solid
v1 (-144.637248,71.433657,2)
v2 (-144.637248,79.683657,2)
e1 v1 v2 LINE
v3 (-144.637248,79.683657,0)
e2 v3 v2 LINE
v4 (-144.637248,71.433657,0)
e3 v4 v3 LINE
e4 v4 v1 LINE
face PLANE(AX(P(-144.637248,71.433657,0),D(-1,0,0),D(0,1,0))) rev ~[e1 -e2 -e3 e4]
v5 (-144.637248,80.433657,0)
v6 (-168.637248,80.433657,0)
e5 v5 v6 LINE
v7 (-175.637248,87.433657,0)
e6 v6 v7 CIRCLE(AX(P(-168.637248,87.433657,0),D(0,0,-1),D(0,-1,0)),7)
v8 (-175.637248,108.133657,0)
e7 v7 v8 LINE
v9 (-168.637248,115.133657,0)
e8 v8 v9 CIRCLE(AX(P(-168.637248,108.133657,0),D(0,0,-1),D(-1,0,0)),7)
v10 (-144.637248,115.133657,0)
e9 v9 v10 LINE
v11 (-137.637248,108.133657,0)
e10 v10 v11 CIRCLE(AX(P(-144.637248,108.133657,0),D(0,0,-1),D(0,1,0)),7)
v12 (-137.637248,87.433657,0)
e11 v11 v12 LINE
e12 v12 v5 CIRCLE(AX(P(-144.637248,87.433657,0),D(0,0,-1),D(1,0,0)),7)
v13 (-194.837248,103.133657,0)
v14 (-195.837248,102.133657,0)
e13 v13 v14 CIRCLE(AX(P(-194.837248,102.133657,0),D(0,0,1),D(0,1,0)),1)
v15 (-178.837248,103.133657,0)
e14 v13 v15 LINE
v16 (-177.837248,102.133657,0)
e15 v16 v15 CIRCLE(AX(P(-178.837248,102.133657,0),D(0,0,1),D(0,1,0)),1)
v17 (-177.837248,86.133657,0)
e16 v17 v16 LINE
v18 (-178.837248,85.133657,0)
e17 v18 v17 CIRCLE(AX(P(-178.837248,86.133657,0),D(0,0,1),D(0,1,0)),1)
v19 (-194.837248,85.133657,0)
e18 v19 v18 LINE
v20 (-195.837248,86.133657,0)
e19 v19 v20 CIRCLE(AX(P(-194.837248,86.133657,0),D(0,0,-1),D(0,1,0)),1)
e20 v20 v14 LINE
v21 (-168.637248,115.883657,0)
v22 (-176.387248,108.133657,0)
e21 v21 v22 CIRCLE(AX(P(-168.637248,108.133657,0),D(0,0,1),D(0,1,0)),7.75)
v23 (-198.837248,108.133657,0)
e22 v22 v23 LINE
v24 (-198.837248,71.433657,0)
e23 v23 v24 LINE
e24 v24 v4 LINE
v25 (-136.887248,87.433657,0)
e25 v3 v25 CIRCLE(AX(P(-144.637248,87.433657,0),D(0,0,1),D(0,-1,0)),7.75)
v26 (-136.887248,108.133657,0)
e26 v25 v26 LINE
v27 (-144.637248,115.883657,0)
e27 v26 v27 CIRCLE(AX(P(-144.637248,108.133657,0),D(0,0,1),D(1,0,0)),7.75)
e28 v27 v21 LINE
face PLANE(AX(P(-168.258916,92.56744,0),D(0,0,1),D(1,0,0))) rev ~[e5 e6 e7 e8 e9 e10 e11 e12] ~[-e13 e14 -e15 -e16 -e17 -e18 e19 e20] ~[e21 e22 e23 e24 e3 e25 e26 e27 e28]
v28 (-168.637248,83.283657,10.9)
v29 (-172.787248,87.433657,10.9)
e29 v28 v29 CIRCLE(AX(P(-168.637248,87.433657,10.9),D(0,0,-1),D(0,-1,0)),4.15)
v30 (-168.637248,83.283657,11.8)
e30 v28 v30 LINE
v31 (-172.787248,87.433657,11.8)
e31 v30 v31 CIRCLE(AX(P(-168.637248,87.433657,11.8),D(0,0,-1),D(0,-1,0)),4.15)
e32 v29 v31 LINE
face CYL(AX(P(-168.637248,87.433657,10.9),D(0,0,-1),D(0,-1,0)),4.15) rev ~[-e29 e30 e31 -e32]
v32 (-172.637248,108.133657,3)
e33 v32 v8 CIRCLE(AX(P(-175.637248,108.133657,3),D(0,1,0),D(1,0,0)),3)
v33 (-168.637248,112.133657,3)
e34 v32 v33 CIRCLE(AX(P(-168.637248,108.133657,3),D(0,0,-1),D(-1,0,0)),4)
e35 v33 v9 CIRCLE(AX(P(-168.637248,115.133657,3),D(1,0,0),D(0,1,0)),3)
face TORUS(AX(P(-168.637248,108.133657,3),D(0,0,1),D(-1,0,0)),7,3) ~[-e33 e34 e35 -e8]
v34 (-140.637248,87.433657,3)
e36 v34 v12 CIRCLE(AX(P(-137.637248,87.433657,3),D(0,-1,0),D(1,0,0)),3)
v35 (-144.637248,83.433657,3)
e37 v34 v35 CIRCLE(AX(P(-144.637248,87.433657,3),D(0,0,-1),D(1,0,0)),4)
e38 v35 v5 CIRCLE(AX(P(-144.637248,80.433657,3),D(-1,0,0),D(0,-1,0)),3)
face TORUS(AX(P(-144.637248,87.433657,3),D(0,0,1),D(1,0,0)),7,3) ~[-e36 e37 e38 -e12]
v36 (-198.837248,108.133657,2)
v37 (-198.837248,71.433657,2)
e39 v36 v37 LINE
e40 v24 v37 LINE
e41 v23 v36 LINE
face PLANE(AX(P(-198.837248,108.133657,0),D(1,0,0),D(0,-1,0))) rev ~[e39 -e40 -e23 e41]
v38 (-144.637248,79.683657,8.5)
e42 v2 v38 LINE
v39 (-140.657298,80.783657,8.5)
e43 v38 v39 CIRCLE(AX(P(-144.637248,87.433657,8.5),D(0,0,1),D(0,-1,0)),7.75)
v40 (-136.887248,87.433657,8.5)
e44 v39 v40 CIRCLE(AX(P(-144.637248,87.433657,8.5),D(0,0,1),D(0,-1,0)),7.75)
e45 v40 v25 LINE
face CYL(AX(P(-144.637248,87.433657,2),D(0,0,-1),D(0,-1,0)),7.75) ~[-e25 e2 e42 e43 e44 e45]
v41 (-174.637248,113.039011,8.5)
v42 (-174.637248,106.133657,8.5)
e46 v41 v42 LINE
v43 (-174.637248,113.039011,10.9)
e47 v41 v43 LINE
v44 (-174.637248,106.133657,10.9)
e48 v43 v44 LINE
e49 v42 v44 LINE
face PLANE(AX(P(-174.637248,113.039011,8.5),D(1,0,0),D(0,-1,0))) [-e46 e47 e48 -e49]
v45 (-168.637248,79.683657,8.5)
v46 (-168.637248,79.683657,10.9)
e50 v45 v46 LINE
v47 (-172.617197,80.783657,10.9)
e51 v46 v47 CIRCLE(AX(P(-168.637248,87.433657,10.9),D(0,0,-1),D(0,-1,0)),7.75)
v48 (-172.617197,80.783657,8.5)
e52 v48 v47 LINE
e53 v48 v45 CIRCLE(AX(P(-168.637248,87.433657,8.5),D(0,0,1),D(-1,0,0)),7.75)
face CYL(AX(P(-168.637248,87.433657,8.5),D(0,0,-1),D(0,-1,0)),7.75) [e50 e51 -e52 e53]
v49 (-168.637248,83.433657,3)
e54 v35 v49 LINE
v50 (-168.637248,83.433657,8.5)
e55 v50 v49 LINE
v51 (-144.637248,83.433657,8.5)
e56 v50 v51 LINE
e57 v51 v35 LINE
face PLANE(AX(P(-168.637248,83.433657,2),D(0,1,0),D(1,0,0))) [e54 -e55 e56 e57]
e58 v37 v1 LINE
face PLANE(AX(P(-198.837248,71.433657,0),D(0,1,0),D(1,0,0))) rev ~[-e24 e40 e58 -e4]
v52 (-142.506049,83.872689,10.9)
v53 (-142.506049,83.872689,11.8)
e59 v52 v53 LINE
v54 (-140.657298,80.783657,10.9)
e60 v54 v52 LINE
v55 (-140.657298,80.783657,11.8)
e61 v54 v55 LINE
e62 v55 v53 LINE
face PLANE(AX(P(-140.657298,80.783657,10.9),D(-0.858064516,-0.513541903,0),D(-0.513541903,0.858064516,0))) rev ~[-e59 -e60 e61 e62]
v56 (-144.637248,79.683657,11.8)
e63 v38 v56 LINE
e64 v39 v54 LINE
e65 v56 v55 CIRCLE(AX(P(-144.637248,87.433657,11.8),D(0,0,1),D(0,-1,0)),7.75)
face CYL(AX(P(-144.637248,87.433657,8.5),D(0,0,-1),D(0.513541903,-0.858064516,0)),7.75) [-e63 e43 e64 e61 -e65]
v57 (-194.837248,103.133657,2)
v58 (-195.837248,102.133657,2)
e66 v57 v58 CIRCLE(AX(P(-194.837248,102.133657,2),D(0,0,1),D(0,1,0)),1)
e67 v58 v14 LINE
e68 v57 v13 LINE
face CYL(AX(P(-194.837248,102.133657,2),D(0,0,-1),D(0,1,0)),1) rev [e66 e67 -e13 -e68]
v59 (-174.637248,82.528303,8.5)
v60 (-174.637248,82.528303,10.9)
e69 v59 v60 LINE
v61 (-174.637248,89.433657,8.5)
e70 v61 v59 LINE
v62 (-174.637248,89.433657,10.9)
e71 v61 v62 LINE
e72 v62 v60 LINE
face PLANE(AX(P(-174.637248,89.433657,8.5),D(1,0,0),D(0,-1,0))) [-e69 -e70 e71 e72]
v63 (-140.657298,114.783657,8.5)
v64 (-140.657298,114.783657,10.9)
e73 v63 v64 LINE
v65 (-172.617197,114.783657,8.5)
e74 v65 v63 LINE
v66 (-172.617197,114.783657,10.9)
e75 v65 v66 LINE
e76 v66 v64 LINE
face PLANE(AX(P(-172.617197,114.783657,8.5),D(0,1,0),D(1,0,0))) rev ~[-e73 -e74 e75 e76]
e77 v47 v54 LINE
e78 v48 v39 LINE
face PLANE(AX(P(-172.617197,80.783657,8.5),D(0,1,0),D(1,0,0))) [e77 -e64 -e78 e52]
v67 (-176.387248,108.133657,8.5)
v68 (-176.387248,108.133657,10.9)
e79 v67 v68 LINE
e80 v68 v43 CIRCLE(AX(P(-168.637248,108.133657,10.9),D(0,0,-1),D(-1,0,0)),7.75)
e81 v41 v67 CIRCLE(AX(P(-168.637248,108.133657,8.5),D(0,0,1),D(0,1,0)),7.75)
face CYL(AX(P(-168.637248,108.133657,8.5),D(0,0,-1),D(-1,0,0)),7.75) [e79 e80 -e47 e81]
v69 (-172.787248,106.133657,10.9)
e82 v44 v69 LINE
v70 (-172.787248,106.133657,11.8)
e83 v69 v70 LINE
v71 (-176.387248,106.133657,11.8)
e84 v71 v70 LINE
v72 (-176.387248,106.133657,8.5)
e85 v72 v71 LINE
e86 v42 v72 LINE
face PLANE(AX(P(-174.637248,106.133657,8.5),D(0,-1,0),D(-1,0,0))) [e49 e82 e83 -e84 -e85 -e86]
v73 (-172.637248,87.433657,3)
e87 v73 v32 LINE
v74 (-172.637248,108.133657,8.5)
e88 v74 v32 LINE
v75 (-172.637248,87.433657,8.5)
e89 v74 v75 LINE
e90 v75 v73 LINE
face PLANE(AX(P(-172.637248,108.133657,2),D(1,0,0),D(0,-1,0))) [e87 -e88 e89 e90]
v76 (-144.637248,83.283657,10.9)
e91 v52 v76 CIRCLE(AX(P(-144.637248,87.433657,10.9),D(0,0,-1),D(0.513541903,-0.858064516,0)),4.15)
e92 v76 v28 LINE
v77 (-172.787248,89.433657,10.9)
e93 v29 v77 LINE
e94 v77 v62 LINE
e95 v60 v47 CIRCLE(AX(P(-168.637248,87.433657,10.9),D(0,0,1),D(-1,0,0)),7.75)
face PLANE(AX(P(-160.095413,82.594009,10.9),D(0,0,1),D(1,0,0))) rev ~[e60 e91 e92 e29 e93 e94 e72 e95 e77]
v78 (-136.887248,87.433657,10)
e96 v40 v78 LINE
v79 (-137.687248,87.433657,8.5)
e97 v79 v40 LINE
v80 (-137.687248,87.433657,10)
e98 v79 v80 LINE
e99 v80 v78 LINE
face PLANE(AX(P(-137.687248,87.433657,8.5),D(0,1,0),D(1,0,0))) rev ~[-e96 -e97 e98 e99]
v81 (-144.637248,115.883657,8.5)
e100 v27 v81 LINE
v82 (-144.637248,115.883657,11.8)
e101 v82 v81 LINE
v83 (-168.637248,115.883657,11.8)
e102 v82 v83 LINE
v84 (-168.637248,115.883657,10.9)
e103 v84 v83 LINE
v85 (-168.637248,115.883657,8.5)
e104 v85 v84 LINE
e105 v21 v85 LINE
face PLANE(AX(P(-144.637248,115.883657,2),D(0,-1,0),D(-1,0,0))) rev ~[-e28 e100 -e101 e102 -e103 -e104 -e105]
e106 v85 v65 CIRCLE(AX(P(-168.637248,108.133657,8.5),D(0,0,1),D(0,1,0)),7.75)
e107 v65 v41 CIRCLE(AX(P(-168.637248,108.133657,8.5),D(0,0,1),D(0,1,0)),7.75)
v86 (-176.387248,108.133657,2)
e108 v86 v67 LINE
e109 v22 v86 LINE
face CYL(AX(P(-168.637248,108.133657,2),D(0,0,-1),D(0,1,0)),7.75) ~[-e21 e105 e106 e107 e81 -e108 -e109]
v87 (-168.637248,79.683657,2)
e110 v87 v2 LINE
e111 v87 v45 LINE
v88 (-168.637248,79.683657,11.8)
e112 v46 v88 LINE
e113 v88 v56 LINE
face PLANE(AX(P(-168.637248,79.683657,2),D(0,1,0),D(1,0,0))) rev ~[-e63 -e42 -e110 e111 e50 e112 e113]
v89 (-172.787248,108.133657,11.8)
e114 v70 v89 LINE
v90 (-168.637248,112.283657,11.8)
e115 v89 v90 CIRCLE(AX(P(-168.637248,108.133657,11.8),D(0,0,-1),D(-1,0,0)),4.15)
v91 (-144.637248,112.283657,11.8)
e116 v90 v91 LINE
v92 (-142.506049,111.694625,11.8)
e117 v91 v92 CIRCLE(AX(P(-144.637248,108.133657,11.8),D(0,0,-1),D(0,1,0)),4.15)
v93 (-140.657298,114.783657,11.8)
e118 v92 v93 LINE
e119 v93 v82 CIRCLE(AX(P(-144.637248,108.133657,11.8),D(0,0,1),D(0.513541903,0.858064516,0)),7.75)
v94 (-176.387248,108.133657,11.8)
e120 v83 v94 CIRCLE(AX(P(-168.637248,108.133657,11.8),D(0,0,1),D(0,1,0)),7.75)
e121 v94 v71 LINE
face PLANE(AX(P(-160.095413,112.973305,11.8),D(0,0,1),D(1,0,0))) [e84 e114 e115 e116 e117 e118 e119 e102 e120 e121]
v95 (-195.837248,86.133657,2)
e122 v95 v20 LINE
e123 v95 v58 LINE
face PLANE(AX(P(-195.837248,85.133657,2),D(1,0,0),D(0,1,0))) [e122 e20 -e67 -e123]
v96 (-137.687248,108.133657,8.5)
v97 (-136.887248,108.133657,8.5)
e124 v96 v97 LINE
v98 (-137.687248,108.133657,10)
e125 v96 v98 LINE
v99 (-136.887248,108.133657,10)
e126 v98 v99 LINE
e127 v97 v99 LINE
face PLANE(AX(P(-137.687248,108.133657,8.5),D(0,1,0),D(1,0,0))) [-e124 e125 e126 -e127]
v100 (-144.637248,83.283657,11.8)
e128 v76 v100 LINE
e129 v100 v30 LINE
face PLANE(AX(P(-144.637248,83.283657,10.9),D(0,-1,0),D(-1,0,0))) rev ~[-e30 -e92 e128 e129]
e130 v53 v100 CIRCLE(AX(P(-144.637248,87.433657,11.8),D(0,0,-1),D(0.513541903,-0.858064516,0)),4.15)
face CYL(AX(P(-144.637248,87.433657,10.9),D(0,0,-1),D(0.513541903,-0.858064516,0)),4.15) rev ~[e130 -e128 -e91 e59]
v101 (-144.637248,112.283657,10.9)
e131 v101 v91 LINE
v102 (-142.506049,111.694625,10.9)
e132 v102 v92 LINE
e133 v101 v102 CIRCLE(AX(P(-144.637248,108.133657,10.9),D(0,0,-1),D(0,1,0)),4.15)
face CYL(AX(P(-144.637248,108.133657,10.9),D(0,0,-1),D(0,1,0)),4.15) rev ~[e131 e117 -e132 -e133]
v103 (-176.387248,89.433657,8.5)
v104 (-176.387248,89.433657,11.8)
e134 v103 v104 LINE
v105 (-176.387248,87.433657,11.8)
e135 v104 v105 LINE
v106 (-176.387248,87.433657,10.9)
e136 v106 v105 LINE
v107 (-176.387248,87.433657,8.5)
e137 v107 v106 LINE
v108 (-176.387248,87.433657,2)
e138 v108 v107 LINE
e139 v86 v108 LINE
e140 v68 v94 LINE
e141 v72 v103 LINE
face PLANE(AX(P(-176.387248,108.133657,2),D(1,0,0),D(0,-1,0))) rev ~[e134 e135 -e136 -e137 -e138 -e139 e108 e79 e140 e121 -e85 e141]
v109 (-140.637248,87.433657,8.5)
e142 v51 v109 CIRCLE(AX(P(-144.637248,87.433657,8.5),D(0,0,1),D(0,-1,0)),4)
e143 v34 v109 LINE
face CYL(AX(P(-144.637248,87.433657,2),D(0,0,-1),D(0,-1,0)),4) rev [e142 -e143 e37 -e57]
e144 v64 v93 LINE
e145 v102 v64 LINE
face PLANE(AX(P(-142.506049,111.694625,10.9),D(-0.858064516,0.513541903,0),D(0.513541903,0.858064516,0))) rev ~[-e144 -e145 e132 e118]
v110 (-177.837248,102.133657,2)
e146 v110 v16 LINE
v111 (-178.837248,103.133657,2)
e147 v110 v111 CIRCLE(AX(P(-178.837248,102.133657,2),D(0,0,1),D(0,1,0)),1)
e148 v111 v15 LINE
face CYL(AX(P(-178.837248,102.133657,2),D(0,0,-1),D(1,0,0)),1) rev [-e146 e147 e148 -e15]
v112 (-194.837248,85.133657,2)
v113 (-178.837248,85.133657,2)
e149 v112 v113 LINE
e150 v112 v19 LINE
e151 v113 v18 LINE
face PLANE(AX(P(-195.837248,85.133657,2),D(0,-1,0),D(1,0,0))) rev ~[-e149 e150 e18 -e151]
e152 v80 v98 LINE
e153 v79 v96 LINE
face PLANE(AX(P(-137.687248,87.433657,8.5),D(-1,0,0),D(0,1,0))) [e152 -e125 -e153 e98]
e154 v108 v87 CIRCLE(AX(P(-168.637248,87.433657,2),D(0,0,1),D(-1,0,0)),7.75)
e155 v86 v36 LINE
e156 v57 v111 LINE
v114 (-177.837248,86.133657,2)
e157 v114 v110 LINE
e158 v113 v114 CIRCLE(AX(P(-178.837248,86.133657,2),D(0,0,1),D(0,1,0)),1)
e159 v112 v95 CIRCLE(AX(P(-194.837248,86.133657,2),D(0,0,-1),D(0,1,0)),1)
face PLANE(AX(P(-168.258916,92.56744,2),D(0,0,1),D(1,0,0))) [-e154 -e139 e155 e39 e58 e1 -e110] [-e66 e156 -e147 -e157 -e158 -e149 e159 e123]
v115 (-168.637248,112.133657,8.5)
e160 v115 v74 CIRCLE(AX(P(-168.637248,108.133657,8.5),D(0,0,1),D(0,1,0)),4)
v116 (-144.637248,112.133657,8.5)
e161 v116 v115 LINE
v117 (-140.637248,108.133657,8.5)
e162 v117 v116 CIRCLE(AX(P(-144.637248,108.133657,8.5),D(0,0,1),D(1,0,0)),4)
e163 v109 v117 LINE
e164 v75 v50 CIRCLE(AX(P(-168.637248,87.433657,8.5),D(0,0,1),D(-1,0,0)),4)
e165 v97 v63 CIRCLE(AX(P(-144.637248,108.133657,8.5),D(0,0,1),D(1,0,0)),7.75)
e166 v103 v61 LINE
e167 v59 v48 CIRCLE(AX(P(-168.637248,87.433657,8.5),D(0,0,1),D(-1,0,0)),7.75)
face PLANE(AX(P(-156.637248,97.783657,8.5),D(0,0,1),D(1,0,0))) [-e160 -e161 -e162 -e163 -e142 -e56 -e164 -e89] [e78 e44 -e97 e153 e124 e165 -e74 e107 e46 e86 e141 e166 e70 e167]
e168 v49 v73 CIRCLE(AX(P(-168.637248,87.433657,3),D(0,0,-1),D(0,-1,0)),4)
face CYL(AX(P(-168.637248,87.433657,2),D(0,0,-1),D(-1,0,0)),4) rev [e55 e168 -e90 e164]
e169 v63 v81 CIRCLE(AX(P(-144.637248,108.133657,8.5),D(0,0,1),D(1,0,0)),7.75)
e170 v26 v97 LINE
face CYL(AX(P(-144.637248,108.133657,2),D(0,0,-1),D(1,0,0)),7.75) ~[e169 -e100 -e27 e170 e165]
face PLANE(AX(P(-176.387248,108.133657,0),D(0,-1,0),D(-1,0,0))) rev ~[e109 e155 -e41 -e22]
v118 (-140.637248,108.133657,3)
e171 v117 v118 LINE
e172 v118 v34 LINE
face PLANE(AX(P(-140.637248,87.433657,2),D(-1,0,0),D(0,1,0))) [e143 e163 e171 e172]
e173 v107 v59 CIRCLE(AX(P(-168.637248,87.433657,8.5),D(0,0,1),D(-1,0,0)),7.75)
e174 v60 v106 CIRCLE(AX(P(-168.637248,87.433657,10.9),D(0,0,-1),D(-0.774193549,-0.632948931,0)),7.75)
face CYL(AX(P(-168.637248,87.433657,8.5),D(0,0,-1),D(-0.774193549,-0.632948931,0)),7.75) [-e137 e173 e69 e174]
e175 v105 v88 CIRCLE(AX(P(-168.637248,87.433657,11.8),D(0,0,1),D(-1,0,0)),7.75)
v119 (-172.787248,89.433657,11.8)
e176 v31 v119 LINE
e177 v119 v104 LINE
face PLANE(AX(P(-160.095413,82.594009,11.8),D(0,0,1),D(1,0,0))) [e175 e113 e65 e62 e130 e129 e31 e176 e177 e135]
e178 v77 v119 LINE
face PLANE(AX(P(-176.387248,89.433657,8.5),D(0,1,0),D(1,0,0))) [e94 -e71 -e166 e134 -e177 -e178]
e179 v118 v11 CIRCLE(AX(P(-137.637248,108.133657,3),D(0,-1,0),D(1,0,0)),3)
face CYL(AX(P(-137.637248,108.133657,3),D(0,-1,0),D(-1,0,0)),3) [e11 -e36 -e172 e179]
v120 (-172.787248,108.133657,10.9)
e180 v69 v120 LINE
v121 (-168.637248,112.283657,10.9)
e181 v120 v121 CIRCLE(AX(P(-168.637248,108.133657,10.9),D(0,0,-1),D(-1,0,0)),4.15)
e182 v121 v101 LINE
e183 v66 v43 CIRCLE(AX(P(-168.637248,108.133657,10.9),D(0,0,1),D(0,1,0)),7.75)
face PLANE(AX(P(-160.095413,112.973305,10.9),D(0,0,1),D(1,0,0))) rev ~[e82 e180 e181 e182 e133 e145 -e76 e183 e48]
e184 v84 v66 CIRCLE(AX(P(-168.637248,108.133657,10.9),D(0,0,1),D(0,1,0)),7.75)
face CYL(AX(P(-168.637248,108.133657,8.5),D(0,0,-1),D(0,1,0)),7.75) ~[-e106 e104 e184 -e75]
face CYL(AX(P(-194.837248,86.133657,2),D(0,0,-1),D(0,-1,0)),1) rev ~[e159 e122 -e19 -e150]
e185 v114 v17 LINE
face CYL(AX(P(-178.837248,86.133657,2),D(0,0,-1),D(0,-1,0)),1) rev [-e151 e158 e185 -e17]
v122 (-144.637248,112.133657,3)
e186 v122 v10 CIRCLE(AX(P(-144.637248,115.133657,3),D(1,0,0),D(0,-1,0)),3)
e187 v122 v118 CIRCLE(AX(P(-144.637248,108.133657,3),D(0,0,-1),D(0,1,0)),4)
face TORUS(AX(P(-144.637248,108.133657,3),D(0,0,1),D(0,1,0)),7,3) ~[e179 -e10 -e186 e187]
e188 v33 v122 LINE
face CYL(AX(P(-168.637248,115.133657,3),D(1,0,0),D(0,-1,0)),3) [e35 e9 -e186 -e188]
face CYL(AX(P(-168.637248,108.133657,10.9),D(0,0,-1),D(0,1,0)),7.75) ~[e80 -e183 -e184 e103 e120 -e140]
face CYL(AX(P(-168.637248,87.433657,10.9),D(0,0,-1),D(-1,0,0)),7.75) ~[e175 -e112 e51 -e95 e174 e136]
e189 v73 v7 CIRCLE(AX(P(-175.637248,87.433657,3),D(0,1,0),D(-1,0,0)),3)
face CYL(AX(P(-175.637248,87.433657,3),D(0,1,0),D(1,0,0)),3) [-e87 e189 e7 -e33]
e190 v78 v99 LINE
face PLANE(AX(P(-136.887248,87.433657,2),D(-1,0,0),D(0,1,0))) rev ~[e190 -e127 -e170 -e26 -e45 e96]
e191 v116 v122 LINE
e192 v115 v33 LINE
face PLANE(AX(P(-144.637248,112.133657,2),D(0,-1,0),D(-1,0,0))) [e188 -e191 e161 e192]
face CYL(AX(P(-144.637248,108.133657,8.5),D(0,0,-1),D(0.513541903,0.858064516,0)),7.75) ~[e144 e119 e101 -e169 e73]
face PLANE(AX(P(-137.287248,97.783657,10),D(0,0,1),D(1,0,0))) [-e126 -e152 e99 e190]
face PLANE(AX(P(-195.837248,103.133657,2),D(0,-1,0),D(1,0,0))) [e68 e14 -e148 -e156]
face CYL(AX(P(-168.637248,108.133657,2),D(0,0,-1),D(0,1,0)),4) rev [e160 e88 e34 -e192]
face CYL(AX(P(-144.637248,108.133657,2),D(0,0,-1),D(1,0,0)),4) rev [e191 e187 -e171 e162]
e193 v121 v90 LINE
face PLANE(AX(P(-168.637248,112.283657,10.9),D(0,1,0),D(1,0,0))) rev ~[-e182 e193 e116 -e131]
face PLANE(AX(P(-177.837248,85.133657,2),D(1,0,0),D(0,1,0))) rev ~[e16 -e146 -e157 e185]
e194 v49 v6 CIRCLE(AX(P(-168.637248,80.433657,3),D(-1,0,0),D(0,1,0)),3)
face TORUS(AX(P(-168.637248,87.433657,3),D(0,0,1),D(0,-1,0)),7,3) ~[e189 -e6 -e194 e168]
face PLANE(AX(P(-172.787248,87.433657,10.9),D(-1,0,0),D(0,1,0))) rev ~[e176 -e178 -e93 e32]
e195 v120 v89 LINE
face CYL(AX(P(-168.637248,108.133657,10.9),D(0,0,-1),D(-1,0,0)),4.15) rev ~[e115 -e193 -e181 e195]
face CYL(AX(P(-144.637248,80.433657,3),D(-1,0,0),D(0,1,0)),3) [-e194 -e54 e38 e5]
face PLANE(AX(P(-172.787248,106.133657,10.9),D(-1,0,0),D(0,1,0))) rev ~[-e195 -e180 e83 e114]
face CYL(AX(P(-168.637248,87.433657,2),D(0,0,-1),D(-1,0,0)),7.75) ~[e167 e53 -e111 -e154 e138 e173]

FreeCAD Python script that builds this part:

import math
import FreeCAD as App
import Part
import Sketcher

V = App.Vector


def edges_at(feature, points):
    """Names of the edges that pass closest to the given points."""
    edges = feature.Shape.Edges
    near = lambda p: min(range(len(edges)), key=lambda i: edges[i].distToShape(Part.Vertex(*p))[0])
    return sorted({f"Edge{near(p) + 1}" for p in points})

doc = App.newDocument("Part")
params = doc.addObject("Spreadsheet::Sheet", "Params")
for row, (alias, value) in enumerate([
    ("sketch1_radius", "4 mm"),
    ("sketch1_width", "24 mm"),
    ("sketch1_radius2", "7.75 mm"),
    ("sketch1_width2", "54.2 mm"),
    ("sketch1_height", "20.7 mm"),
    ("pad1_length", "2 mm"),
    ("sketch2_radius", "4 mm"),
    ("sketch2_width", "24 mm"),
    ("sketch2_radius2", "7.75 mm"),
    ("sketch2_height", "20.7 mm"),
    ("pad2_length", "6.5 mm"),
    ("sketch3_width", "24 mm"),
    ("sketch3_height", "2 mm"),
    ("sketch3_radius", "7.75 mm"),
    ("pad3_length", "2.4 mm"),
    ("sketch4_width", "24 mm"),
    ("sketch4_height", "2 mm"),
    ("sketch4_radius", "4.15 mm"),
    ("sketch4_radius2", "7.75 mm"),
    ("pad4_length", "0.9 mm"),
    ("fillet_radius", "3 mm"),
    ("sketch5_width", "0.8 mm"),
    ("sketch5_height", "20.7 mm"),
    ("pad5_length", "1.5 mm"),
    ("sketch6_width", "18 mm"),
    ("pocket1_length", "2 mm"),
    ("fillet2_radius", "1 mm"),
], start=1):
    params.set(f"A{row}", alias)
    params.set(f"B{row}", "=" + value)
    params.setAlias(f"B{row}", alias)

body = doc.addObject("PartDesign::Body", "Body")

# Sketch on XY plane
sketch1 = body.newObject("Sketcher::SketchObject", "Sketch")
sketch1.AttachmentSupport = (doc.getObject("XY_Plane"), [""])
sketch1.MapMode = "FlatFace"
sketch1.addGeometry(Part.LineSegment(V(-198.8, 71.4, 0), V(-144.6, 71.4, 0)), False)
sketch1.addGeometry(Part.LineSegment(V(-144.6, 71.4, 0), V(-144.6, 79.7, 0)), False)
sketch1.addGeometry(Part.ArcOfCircle(Part.Circle(V(-144.6, 87.4, 0), V(0, 0, 1), 7.8), math.radians(-90), math.radians(0)), False)
sketch1.addGeometry(Part.LineSegment(V(-136.9, 87.4, 0), V(-136.9, 108.1, 0)), False)
sketch1.addGeometry(Part.ArcOfCircle(Part.Circle(V(-144.6, 108.1, 0), V(0, 0, 1), 7.8), math.radians(0), math.radians(90)), False)
sketch1.addGeometry(Part.LineSegment(V(-144.6, 115.9, 0), V(-168.6, 115.9, 0)), False)
sketch1.addGeometry(Part.ArcOfCircle(Part.Circle(V(-168.6, 108.1, 0), V(0, 0, 1), 7.8), math.radians(90), math.radians(180)), False)
sketch1.addGeometry(Part.LineSegment(V(-176.4, 108.1, 0), V(-198.8, 108.1, 0)), False)
sketch1.addGeometry(Part.LineSegment(V(-198.8, 108.1, 0), V(-198.8, 71.4, 0)), False)
sketch1.addGeometry(Part.ArcOfCircle(Part.Circle(V(-144.6, 87.4, 0), V(0, 0, 1), 4), math.radians(-90), math.radians(0)), False)
sketch1.addGeometry(Part.LineSegment(V(-144.6, 83.4, 0), V(-168.6, 83.4, 0)), False)
sketch1.addGeometry(Part.ArcOfCircle(Part.Circle(V(-168.6, 87.4, 0), V(0, 0, 1), 4), math.radians(180), math.radians(270)), False)
sketch1.addGeometry(Part.LineSegment(V(-172.6, 87.4, 0), V(-172.6, 108.1, 0)), False)
sketch1.addGeometry(Part.ArcOfCircle(Part.Circle(V(-168.6, 108.1, 0), V(0, 0, 1), 4), math.radians(90), math.radians(180)), False)
sketch1.addGeometry(Part.LineSegment(V(-168.6, 112.1, 0), V(-144.6, 112.1, 0)), False)
sketch1.addGeometry(Part.ArcOfCircle(Part.Circle(V(-144.6, 108.1, 0), V(0, 0, 1), 4), math.radians(0), math.radians(90)), False)
sketch1.addGeometry(Part.LineSegment(V(-140.6, 108.1, 0), V(-140.6, 87.4, 0)), False)
sketch1.addConstraint(Sketcher.Constraint("Coincident", 0, 2, 1, 1))
sketch1.addConstraint(Sketcher.Constraint("Coincident", 1, 2, 2, 1))
sketch1.addConstraint(Sketcher.Constraint("Tangent", 2, 2, 3, 1))
sketch1.addConstraint(Sketcher.Constraint("Tangent", 3, 2, 4, 1))
sketch1.addConstraint(Sketcher.Constraint("Tangent", 4, 2, 5, 1))
sketch1.addConstraint(Sketcher.Constraint("Tangent", 5, 2, 6, 1))
sketch1.addConstraint(Sketcher.Constraint("Coincident", 6, 2, 7, 1))
sketch1.addConstraint(Sketcher.Constraint("Coincident", 7, 2, 8, 1))
sketch1.addConstraint(Sketcher.Constraint("Coincident", 8, 2, 0, 1))
sketch1.addConstraint(Sketcher.Constraint("Tangent", 9, 1, 10, 1))
sketch1.addConstraint(Sketcher.Constraint("Tangent", 10, 2, 11, 2))
sketch1.addConstraint(Sketcher.Constraint("Tangent", 11, 1, 12, 1))
sketch1.addConstraint(Sketcher.Constraint("Tangent", 12, 2, 13, 2))
sketch1.addConstraint(Sketcher.Constraint("Tangent", 13, 1, 14, 1))
sketch1.addConstraint(Sketcher.Constraint("Tangent", 14, 2, 15, 2))
sketch1.addConstraint(Sketcher.Constraint("Tangent", 15, 1, 16, 1))
sketch1.addConstraint(Sketcher.Constraint("Tangent", 16, 2, 9, 2))
sketch1.addConstraint(Sketcher.Constraint("Horizontal", 0))
sketch1.addConstraint(Sketcher.Constraint("Vertical", 1))
sketch1.addConstraint(Sketcher.Constraint("Vertical", 3))
sketch1.addConstraint(Sketcher.Constraint("Horizontal", 5))
sketch1.addConstraint(Sketcher.Constraint("Horizontal", 7))
sketch1.addConstraint(Sketcher.Constraint("Vertical", 8))
sketch1.addConstraint(Sketcher.Constraint("Horizontal", 10))
sketch1.addConstraint(Sketcher.Constraint("Vertical", 12))
sketch1.addConstraint(Sketcher.Constraint("Horizontal", 14))
sketch1.addConstraint(Sketcher.Constraint("Vertical", 16))
sketch1.addConstraint(Sketcher.Constraint("Coincident", 9, 3, 2, 3))
sketch1.addConstraint(Sketcher.Constraint("Coincident", 13, 3, 6, 3))
sketch1.addConstraint(Sketcher.Constraint("Coincident", 15, 3, 4, 3))
sketch1.addConstraint(Sketcher.Constraint("Equal", 2, 4))
sketch1.addConstraint(Sketcher.Constraint("Equal", 4, 6))
sketch1.addConstraint(Sketcher.Constraint("Equal", 9, 11))
sketch1.addConstraint(Sketcher.Constraint("Horizontal", 3, 2, 6, 2))
sketch1.addConstraint(Sketcher.Constraint("Vertical", 15, 3, 0, 2))
sketch1.addConstraint(Sketcher.Constraint("Radius", 9, 4.0))
sketch1.addConstraint(Sketcher.Constraint("DistanceX", 5, 2, 5, 1, 24.0))
sketch1.addConstraint(Sketcher.Constraint("Radius", 2, 7.75))
sketch1.addConstraint(Sketcher.Constraint("DistanceX", 0, 1, 0, 2, 54.2))
sketch1.addConstraint(Sketcher.Constraint("DistanceY", 3, 1, 3, 2, 20.7))
sketch1.addConstraint(Sketcher.Constraint("DistanceY", 8, 2, 8, 1, 36.7))
sketch1.addConstraint(Sketcher.Constraint("DistanceX", 2, 3, -1, 1, 144.637248))
sketch1.addConstraint(Sketcher.Constraint("DistanceY", -1, 1, 2, 3, 87.433657))
sketch1.setExpression("Constraints[35]", "Params.sketch1_radius")
sketch1.setExpression("Constraints[36]", "Params.sketch1_width")
sketch1.setExpression("Constraints[37]", "Params.sketch1_radius2")
sketch1.setExpression("Constraints[38]", "Params.sketch1_width2")
sketch1.setExpression("Constraints[39]", "Params.sketch1_height")
pad1 = body.newObject("PartDesign::Pad", "Pad")
pad1.Profile = sketch1
pad1.setExpression("Length", "Params.pad1_length")

# Sketch on XY plane
sketch2 = body.newObject("Sketcher::SketchObject", "Sketch001")
sketch2.AttachmentSupport = (doc.getObject("XY_Plane"), [""])
sketch2.MapMode = "FlatFace"
sketch2.AttachmentOffset = App.Placement(V(0, 0, 2), App.Rotation())
sketch2.addGeometry(Part.LineSegment(V(-136.9, 87.4, 0), V(-136.9, 108.1, 0)), False)
sketch2.addGeometry(Part.ArcOfCircle(Part.Circle(V(-144.6, 108.1, 0), V(0, 0, 1), 7.8), math.radians(0), math.radians(90)), False)
sketch2.addGeometry(Part.LineSegment(V(-144.6, 115.9, 0), V(-168.6, 115.9, 0)), False)
sketch2.addGeometry(Part.ArcOfCircle(Part.Circle(V(-168.6, 108.1, 0), V(0, 0, 1), 7.8), math.radians(90), math.radians(180)), False)
sketch2.addGeometry(Part.LineSegment(V(-176.4, 108.1, 0), V(-176.4, 87.4, 0)), False)
sketch2.addGeometry(Part.ArcOfCircle(Part.Circle(V(-168.6, 87.4, 0), V(0, 0, 1), 7.8), math.radians(-180), math.radians(-90)), False)
sketch2.addGeometry(Part.LineSegment(V(-168.6, 79.7, 0), V(-144.6, 79.7, 0)), False)
sketch2.addGeometry(Part.ArcOfCircle(Part.Circle(V(-144.6, 87.4, 0), V(0, 0, 1), 7.8), math.radians(-90), math.radians(0)), False)
sketch2.addGeometry(Part.LineSegment(V(-140.6, 108.1, 0), V(-140.6, 87.4, 0)), False)
sketch2.addGeometry(Part.ArcOfCircle(Part.Circle(V(-144.6, 87.4, 0), V(0, 0, 1), 4), math.radians(-90), math.radians(0)), False)
sketch2.addGeometry(Part.LineSegment(V(-144.6, 83.4, 0), V(-168.6, 83.4, 0)), False)
sketch2.addGeometry(Part.ArcOfCircle(Part.Circle(V(-168.6, 87.4, 0), V(0, 0, 1), 4), math.radians(180), math.radians(270)), False)
sketch2.addGeometry(Part.LineSegment(V(-172.6, 87.4, 0), V(-172.6, 108.1, 0)), False)
sketch2.addGeometry(Part.ArcOfCircle(Part.Circle(V(-168.6, 108.1, 0), V(0, 0, 1), 4), math.radians(90), math.radians(180)), False)
sketch2.addGeometry(Part.LineSegment(V(-168.6, 112.1, 0), V(-144.6, 112.1, 0)), False)
sketch2.addGeometry(Part.ArcOfCircle(Part.Circle(V(-144.6, 108.1, 0), V(0, 0, 1), 4), math.radians(0), math.radians(90)), False)
sketch2.addConstraint(Sketcher.Constraint("Tangent", 0, 2, 1, 1))
sketch2.addConstraint(Sketcher.Constraint("Tangent", 1, 2, 2, 1))
sketch2.addConstraint(Sketcher.Constraint("Tangent", 2, 2, 3, 1))
sketch2.addConstraint(Sketcher.Constraint("Tangent", 3, 2, 4, 1))
sketch2.addConstraint(Sketcher.Constraint("Tangent", 4, 2, 5, 1))
sketch2.addConstraint(Sketcher.Constraint("Tangent", 5, 2, 6, 1))
sketch2.addConstraint(Sketcher.Constraint("Tangent", 6, 2, 7, 1))
sketch2.addConstraint(Sketcher.Constraint("Tangent", 7, 2, 0, 1))
sketch2.addConstraint(Sketcher.Constraint("Tangent", 8, 2, 9, 2))
sketch2.addConstraint(Sketcher.Constraint("Tangent", 9, 1, 10, 1))
sketch2.addConstraint(Sketcher.Constraint("Tangent", 10, 2, 11, 2))
sketch2.addConstraint(Sketcher.Constraint("Tangent", 11, 1, 12, 1))
sketch2.addConstraint(Sketcher.Constraint("Tangent", 12, 2, 13, 2))
sketch2.addConstraint(Sketcher.Constraint("Tangent", 13, 1, 14, 1))
sketch2.addConstraint(Sketcher.Constraint("Tangent", 14, 2, 15, 2))
sketch2.addConstraint(Sketcher.Constraint("Tangent", 15, 1, 8, 1))
sketch2.addConstraint(Sketcher.Constraint("Vertical", 0))
sketch2.addConstraint(Sketcher.Constraint("Horizontal", 2))
sketch2.addConstraint(Sketcher.Constraint("Vertical", 4))
sketch2.addConstraint(Sketcher.Constraint("Horizontal", 6))
sketch2.addConstraint(Sketcher.Constraint("Vertical", 8))
sketch2.addConstraint(Sketcher.Constraint("Horizontal", 10))
sketch2.addConstraint(Sketcher.Constraint("Vertical", 12))
sketch2.addConstraint(Sketcher.Constraint("Horizontal", 14))
sketch2.addConstraint(Sketcher.Constraint("Coincident", 9, 3, 7, 3))
sketch2.addConstraint(Sketcher.Constraint("Coincident", 11, 3, 5, 3))
sketch2.addConstraint(Sketcher.Constraint("Coincident", 13, 3, 3, 3))
sketch2.addConstraint(Sketcher.Constraint("Equal", 1, 3))
sketch2.addConstraint(Sketcher.Constraint("Equal", 3, 5))
sketch2.addConstraint(Sketcher.Constraint("Equal", 5, 7))
sketch2.addConstraint(Sketcher.Constraint("Equal", 13, 15))
sketch2.addConstraint(Sketcher.Constraint("Radius", 9, 4.0))
sketch2.addConstraint(Sketcher.Constraint("DistanceX", 2, 2, 2, 1, 24.0))
sketch2.addConstraint(Sketcher.Constraint("Radius", 1, 7.75))
sketch2.addConstraint(Sketcher.Constraint("DistanceY", 0, 1, 0, 2, 20.7))
sketch2.addConstraint(Sketcher.Constraint("DistanceX", 1, 3, -1, 1, 144.637248))
sketch2.addConstraint(Sketcher.Constraint("DistanceY", -1, 1, 1, 3, 108.133657))
sketch2.setExpression("Constraints[31]", "Params.sketch2_radius")
sketch2.setExpression("Constraints[32]", "Params.sketch2_width")
sketch2.setExpression("Constraints[33]", "Params.sketch2_radius2")
sketch2.setExpression("Constraints[34]", "Params.sketch2_height")
pad2 = body.newObject("PartDesign::Pad", "Pad001")
pad2.Profile = sketch2
pad2.setExpression("Length", "Params.pad2_length")

# Sketch on XY plane
sketch3 = body.newObject("Sketcher::SketchObject", "Sketch002")
sketch3.AttachmentSupport = (doc.getObject("XY_Plane"), [""])
sketch3.MapMode = "FlatFace"
sketch3.AttachmentOffset = App.Placement(V(0, 0, 8.5), App.Rotation())
sketch3.addGeometry(Part.LineSegment(V(-172.6, 114.8, 0), V(-140.7, 114.8, 0)), False)
sketch3.addGeometry(Part.ArcOfCircle(Part.Circle(V(-144.6, 108.1, 0), V(0, 0, 1), 7.7), math.radians(59), math.radians(90)), False)
sketch3.addGeometry(Part.LineSegment(V(-144.6, 115.9, 0), V(-168.6, 115.9, 0)), False)
sketch3.addGeometry(Part.ArcOfCircle(Part.Circle(V(-168.6, 108.1, 0), V(0, 0, 1), 7.7), math.radians(90), math.radians(121)), False)
sketch3.addGeometry(Part.LineSegment(V(-168.6, 79.7, 0), V(-144.6, 79.7, 0)), False)
sketch3.addGeometry(Part.ArcOfCircle(Part.Circle(V(-144.6, 87.4, 0), V(0, 0, 1), 7.7), math.radians(-90), math.radians(-59)), False)
sketch3.addGeometry(Part.LineSegment(V(-140.7, 80.8, 0), V(-172.6, 80.8, 0)), False)
sketch3.addGeometry(Part.ArcOfCircle(Part.Circle(V(-168.6, 87.4, 0), V(0, 0, 1), 7.7), math.radians(-121), math.radians(-90)), False)
sketch3.addGeometry(Part.LineSegment(V(-174.6, 106.1, 0), V(-174.6, 113, 0)), False)
sketch3.addGeometry(Part.ArcOfCircle(Part.Circle(V(-168.6, 108.1, 0), V(0, 0, 1), 7.8), math.radians(141), math.radians(180)), False)
sketch3.addGeometry(Part.LineSegment(V(-176.4, 108.1, 0), V(-176.4, 106.1, 0)), False)
sketch3.addGeometry(Part.LineSegment(V(-176.4, 106.1, 0), V(-174.6, 106.1, 0)), False)
sketch3.addGeometry(Part.LineSegment(V(-176.4, 89.4, 0), V(-176.4, 87.4, 0)), False)
sketch3.addGeometry(Part.ArcOfCircle(Part.Circle(V(-168.6, 87.4, 0), V(0, 0, 1), 7.8), math.radians(-180), math.radians(-141)), False)
sketch3.addGeometry(Part.LineSegment(V(-174.6, 82.5, 0), V(-174.6, 89.4, 0)), False)
sketch3.addGeometry(Part.LineSegment(V(-174.6, 89.4, 0), V(-176.4, 89.4, 0)), False)
sketch3.addConstraint(Sketcher.Constraint("Coincident", 0, 2, 1, 1))
sketch3.addConstraint(Sketcher.Constraint("Tangent", 1, 2, 2, 1))
sketch3.addConstraint(Sketcher.Constraint("Tangent", 2, 2, 3, 1))
sketch3.addConstraint(Sketcher.Constraint("Coincident", 3, 2, 0, 1))
sketch3.addConstraint(Sketcher.Constraint("Tangent", 4, 2, 5, 1))
sketch3.addConstraint(Sketcher.Constraint("Coincident", 5, 2, 6, 1))
sketch3.addConstraint(Sketcher.Constraint("Coincident", 6, 2, 7, 1))
sketch3.addConstraint(Sketcher.Constraint("Tangent", 7, 2, 4, 1))
sketch3.addConstraint(Sketcher.Constraint("Coincident", 8, 2, 9, 1))
sketch3.addConstraint(Sketcher.Constraint("Tangent", 9, 2, 10, 1))
sketch3.addConstraint(Sketcher.Constraint("Coincident", 10, 2, 11, 1))
sketch3.addConstraint(Sketcher.Constraint("Coincident", 11, 2, 8, 1))
sketch3.addConstraint(Sketcher.Constraint("Tangent", 12, 2, 13, 1))
sketch3.addConstraint(Sketcher.Constraint("Coincident", 13, 2, 14, 1))
sketch3.addConstraint(Sketcher.Constraint("Coincident", 14, 2, 15, 1))
sketch3.addConstraint(Sketcher.Constraint("Coincident", 15, 2, 12, 1))
sketch3.addConstraint(Sketcher.Constraint("Horizontal", 0))
sketch3.addConstraint(Sketcher.Constraint("Horizontal", 2))
sketch3.addConstraint(Sketcher.Constraint("Horizontal", 4))
sketch3.addConstraint(Sketcher.Constraint("Horizontal", 6))
sketch3.addConstraint(Sketcher.Constraint("Vertical", 8))
sketch3.addConstraint(Sketcher.Constraint("Vertical", 10))
sketch3.addConstraint(Sketcher.Constraint("Horizontal", 11))
sketch3.addConstraint(Sketcher.Constraint("Vertical", 12))
sketch3.addConstraint(Sketcher.Constraint("Vertical", 14))
sketch3.addConstraint(Sketcher.Constraint("Horizontal", 15))
sketch3.addConstraint(Sketcher.Constraint("Coincident", 9, 3, 3, 3))
sketch3.addConstraint(Sketcher.Constraint("Coincident", 13, 3, 7, 3))
sketch3.addConstraint(Sketcher.Constraint("Equal", 1, 3))
sketch3.addConstraint(Sketcher.Constraint("Equal", 3, 5))
sketch3.addConstraint(Sketcher.Constraint("Equal", 5, 7))
sketch3.addConstraint(Sketcher.Constraint("Equal", 7, 9))
sketch3.addConstraint(Sketcher.Constraint("Equal", 9, 13))
sketch3.addConstraint(Sketcher.Constraint("Vertical", 1, 3, 5, 3))
sketch3.addConstraint(Sketcher.Constraint("Vertical", 3, 3, 7, 3))
sketch3.addConstraint(Sketcher.Constraint("Vertical", 0, 2, 5, 2))
sketch3.addConstraint(Sketcher.Constraint("Vertical", 11, 2, 13, 2))
sketch3.addConstraint(Sketcher.Constraint("Equal", 10, 12))
sketch3.addConstraint(Sketcher.Constraint("DistanceX", 2, 2, 2, 1, 24.0))
sketch3.addConstraint(Sketcher.Constraint("DistanceY", 10, 2, 10, 1, 2.0))
sketch3.addConstraint(Sketcher.Constraint("Radius", 1, 7.75))
sketch3.addConstraint(Sketcher.Constraint("DistanceX", 8, 2, 2, 2, 6.0))
sketch3.addConstraint(Sketcher.Constraint("DistanceY", 5, 3, 1, 3, 20.7))
sketch3.addConstraint(Sketcher.Constraint("DistanceY", 0, 2, 1, 2, 1.1))
sketch3.addConstraint(Sketcher.Constraint("DistanceY", -1, 1, 8, 2, 113.039011))
sketch3.addConstraint(Sketcher.Constraint("DistanceX", 1, 3, -1, 1, 144.637248))
sketch3.setExpression("Constraints[38]", "Params.sketch3_width")
sketch3.setExpression("Constraints[39]", "Params.sketch3_height")
sketch3.setExpression("Constraints[40]", "Params.sketch3_radius")
pad3 = body.newObject("PartDesign::Pad", "Pad002")
pad3.Profile = sketch3
pad3.setExpression("Length", "Params.pad3_length")

# Sketch on XY plane
sketch4 = body.newObject("Sketcher::SketchObject", "Sketch003")
sketch4.AttachmentSupport = (doc.getObject("XY_Plane"), [""])
sketch4.MapMode = "FlatFace"
sketch4.AttachmentOffset = App.Placement(V(0, 0, 10.9), App.Rotation())
sketch4.addGeometry(Part.LineSegment(V(-172.8, 106.1, 0), V(-172.8, 108.1, 0)), False)
sketch4.addGeometry(Part.ArcOfCircle(Part.Circle(V(-168.6, 108.1, 0), V(0, 0, 1), 4.2), math.radians(90), math.radians(180)), False)
sketch4.addGeometry(Part.LineSegment(V(-168.6, 112.3, 0), V(-144.6, 112.3, 0)), False)
sketch4.addGeometry(Part.ArcOfCircle(Part.Circle(V(-144.6, 108.1, 0), V(0, 0, 1), 4.2), math.radians(59), math.radians(90)), False)
sketch4.addGeometry(Part.LineSegment(V(-142.5, 111.7, 0), V(-140.7, 114.8, 0)), False)
sketch4.addGeometry(Part.ArcOfCircle(Part.Circle(V(-144.6, 108.1, 0), V(0, 0, 1), 7.7), math.radians(59), math.radians(90)), False)
sketch4.addGeometry(Part.LineSegment(V(-144.6, 115.9, 0), V(-168.6, 115.9, 0)), False)
sketch4.addGeometry(Part.ArcOfCircle(Part.Circle(V(-168.6, 108.1, 0), V(0, 0, 1), 7.8), math.radians(90), math.radians(180)), False)
sketch4.addGeometry(Part.LineSegment(V(-176.4, 108.1, 0), V(-176.4, 106.1, 0)), False)
sketch4.addGeometry(Part.LineSegment(V(-176.4, 106.1, 0), V(-172.8, 106.1, 0)), False)
sketch4.addGeometry(Part.LineSegment(V(-168.6, 79.7, 0), V(-144.6, 79.7, 0)), False)
sketch4.addGeometry(Part.ArcOfCircle(Part.Circle(V(-144.6, 87.4, 0), V(0, 0, 1), 7.7), math.radians(-90), math.radians(-59)), False)
sketch4.addGeometry(Part.LineSegment(V(-140.7, 80.8, 0), V(-142.5, 83.9, 0)), False)
sketch4.addGeometry(Part.ArcOfCircle(Part.Circle(V(-144.6, 87.4, 0), V(0, 0, 1), 4.2), math.radians(-90), math.radians(-59)), False)
sketch4.addGeometry(Part.LineSegment(V(-144.6, 83.3, 0), V(-168.6, 83.3, 0)), False)
sketch4.addGeometry(Part.ArcOfCircle(Part.Circle(V(-168.6, 87.4, 0), V(0, 0, 1), 4.2), math.radians(180), math.radians(270)), False)
sketch4.addGeometry(Part.LineSegment(V(-172.8, 87.4, 0), V(-172.8, 89.4, 0)), False)
sketch4.addGeometry(Part.LineSegment(V(-172.8, 89.4, 0), V(-176.4, 89.4, 0)), False)
sketch4.addGeometry(Part.LineSegment(V(-176.4, 89.4, 0), V(-176.4, 87.4, 0)), False)
sketch4.addGeometry(Part.ArcOfCircle(Part.Circle(V(-168.6, 87.4, 0), V(0, 0, 1), 7.8), math.radians(-180), math.radians(-90)), False)
sketch4.addConstraint(Sketcher.Constraint("Tangent", 0, 2, 1, 2))
sketch4.addConstraint(Sketcher.Constraint("Tangent", 1, 1, 2, 1))
sketch4.addConstraint(Sketcher.Constraint("Tangent", 2, 2, 3, 2))
sketch4.addConstraint(Sketcher.Constraint("Coincident", 3, 1, 4, 1))
sketch4.addConstraint(Sketcher.Constraint("Coincident", 4, 2, 5, 1))
sketch4.addConstraint(Sketcher.Constraint("Tangent", 5, 2, 6, 1))
sketch4.addConstraint(Sketcher.Constraint("Tangent", 6, 2, 7, 1))
sketch4.addConstraint(Sketcher.Constraint("Tangent", 7, 2, 8, 1))
sketch4.addConstraint(Sketcher.Constraint("Coincident", 8, 2, 9, 1))
sketch4.addConstraint(Sketcher.Constraint("Coincident", 9, 2, 0, 1))
sketch4.addConstraint(Sketcher.Constraint("Tangent", 10, 2, 11, 1))
sketch4.addConstraint(Sketcher.Constraint("Coincident", 11, 2, 12, 1))
sketch4.addConstraint(Sketcher.Constraint("Coincident", 12, 2, 13, 2))
sketch4.addConstraint(Sketcher.Constraint("Tangent", 13, 1, 14, 1))
sketch4.addConstraint(Sketcher.Constraint("Tangent", 14, 2, 15, 2))
sketch4.addConstraint(Sketcher.Constraint("Tangent", 15, 1, 16, 1))
sketch4.addConstraint(Sketcher.Constraint("Coincident", 16, 2, 17, 1))
sketch4.addConstraint(Sketcher.Constraint("Coincident", 17, 2, 18, 1))
sketch4.addConstraint(Sketcher.Constraint("Tangent", 18, 2, 19, 1))
sketch4.addConstraint(Sketcher.Constraint("Tangent", 19, 2, 10, 1))
sketch4.addConstraint(Sketcher.Constraint("Vertical", 0))
sketch4.addConstraint(Sketcher.Constraint("Horizontal", 2))
sketch4.addConstraint(Sketcher.Constraint("Horizontal", 6))
sketch4.addConstraint(Sketcher.Constraint("Vertical", 8))
sketch4.addConstraint(Sketcher.Constraint("Horizontal", 9))
sketch4.addConstraint(Sketcher.Constraint("Horizontal", 10))
sketch4.addConstraint(Sketcher.Constraint("Horizontal", 14))
sketch4.addConstraint(Sketcher.Constraint("Vertical", 16))
sketch4.addConstraint(Sketcher.Constraint("Horizontal", 17))
sketch4.addConstraint(Sketcher.Constraint("Vertical", 18))
sketch4.addConstraint(Sketcher.Constraint("Coincident", 5, 3, 3, 3))
sketch4.addConstraint(Sketcher.Constraint("Coincident", 7, 3, 1, 3))
sketch4.addConstraint(Sketcher.Constraint("Coincident", 13, 3, 11, 3))
sketch4.addConstraint(Sketcher.Constraint("Coincident", 19, 3, 15, 3))
sketch4.addConstraint(Sketcher.Constraint("Equal", 1, 3))
sketch4.addConstraint(Sketcher.Constraint("Equal", 7, 11))
sketch4.addConstraint(Sketcher.Constraint("Equal", 3, 13))
sketch4.addConstraint(Sketcher.Constraint("Equal", 13, 15))
sketch4.addConstraint(Sketcher.Constraint("Vertical", 5, 3, 11, 3))
sketch4.addConstraint(Sketcher.Constraint("Vertical", 7, 3, 15, 3))
sketch4.addConstraint(Sketcher.Constraint("Vertical", 4, 2, 11, 2))
sketch4.addConstraint(Sketcher.Constraint("Vertical", 3, 1, 12, 2))
sketch4.addConstraint(Sketcher.Constraint("Equal", 8, 16))
sketch4.addConstraint(Sketcher.Constraint("DistanceX", 2, 1, 2, 2, 24.0))
sketch4.addConstraint(Sketcher.Constraint("DistanceY", 0, 1, 0, 2, 2.0))
sketch4.addConstraint(Sketcher.Constraint("Radius", 1, 4.15))
sketch4.addConstraint(Sketcher.Constraint("Radius", 5, 7.75))
sketch4.addConstraint(Sketcher.Constraint("DistanceY", 11, 3, 3, 3, 20.7))
sketch4.addConstraint(Sketcher.Constraint("DistanceY", 2, 2, 4, 2, 2.5))
sketch4.addConstraint(Sketcher.Constraint("DistanceX", 2, 2, 3, 1, 2.131199))
sketch4.addConstraint(Sketcher.Constraint("DistanceX", 3, 1, -1, 1, 142.506049))
sketch4.addConstraint(Sketcher.Constraint("DistanceY", -1, 1, 12, 2, 83.872689))
sketch4.setExpression("Constraints[43]", "Params.sketch4_width")
sketch4.setExpression("Constraints[44]", "Params.sketch4_height")
sketch4.setExpression("Constraints[45]", "Params.sketch4_radius")
sketch4.setExpression("Constraints[46]", "Params.sketch4_radius2")
pad4 = body.newObject("PartDesign::Pad", "Pad003")
pad4.Profile = sketch4
pad4.setExpression("Length", "Params.pad4_length")
doc.recompute()

fillet = body.newObject("PartDesign::Fillet", "Fillet")
fillet.Base = (pad4, edges_at(pad4, [
    (-141.809, 84.605, 0),
    (-140.637, 97.784, 0),
    (-141.809, 110.962, 0),
    (-156.637, 112.134, 0),
    (-171.466, 110.962, 0),
    (-172.637, 97.784, 0),
    (-171.466, 84.605, 0),
    (-156.637, 83.434, 0),
]))
fillet.setExpression("Radius", "Params.fillet_radius")

# Sketch on XY plane
sketch5 = body.newObject("Sketcher::SketchObject", "Sketch004")
sketch5.AttachmentSupport = (doc.getObject("XY_Plane"), [""])
sketch5.MapMode = "FlatFace"
sketch5.AttachmentOffset = App.Placement(V(0, 0, 8.5), App.Rotation())
sketch5.addGeometry(Part.LineSegment(V(-137.7, 108.1, 0), V(-137.7, 87.4, 0)), False)
sketch5.addGeometry(Part.LineSegment(V(-137.7, 87.4, 0), V(-136.9, 87.4, 0)), False)
sketch5.addGeometry(Part.LineSegment(V(-136.9, 87.4, 0), V(-136.9, 108.1, 0)), False)
sketch5.addGeometry(Part.LineSegment(V(-136.9, 108.1, 0), V(-137.7, 108.1, 0)), False)
sketch5.addConstraint(Sketcher.Constraint("Coincident", 0, 2, 1, 1))
sketch5.addConstraint(Sketcher.Constraint("Coincident", 1, 2, 2, 1))
sketch5.addConstraint(Sketcher.Constraint("Coincident", 2, 2, 3, 1))
sketch5.addConstraint(Sketcher.Constraint("Coincident", 3, 2, 0, 1))
sketch5.addConstraint(Sketcher.Constraint("Vertical", 0))
sketch5.addConstraint(Sketcher.Constraint("Horizontal", 1))
sketch5.addConstraint(Sketcher.Constraint("Vertical", 2))
sketch5.addConstraint(Sketcher.Constraint("Horizontal", 3))
sketch5.addConstraint(Sketcher.Constraint("DistanceX", 1, 1, 1, 2, 0.8))
sketch5.addConstraint(Sketcher.Constraint("DistanceY", 0, 2, 0, 1, 20.7))
sketch5.addConstraint(Sketcher.Constraint("DistanceX", 0, 2, -1, 1, 137.687248))
sketch5.addConstraint(Sketcher.Constraint("DistanceY", -1, 1, 0, 2, 87.433657))
sketch5.setExpression("Constraints[8]", "Params.sketch5_width")
sketch5.setExpression("Constraints[9]", "Params.sketch5_height")
pad5 = body.newObject("PartDesign::Pad", "Pad004")
pad5.Profile = sketch5
pad5.setExpression("Length", "Params.pad5_length")

# Sketch on XY plane
sketch6 = body.newObject("Sketcher::SketchObject", "Sketch005")
sketch6.AttachmentSupport = (doc.getObject("XY_Plane"), [""])
sketch6.MapMode = "FlatFace"
sketch6.AttachmentOffset = App.Placement(V(0, 0, 2), App.Rotation())
sketch6.addGeometry(Part.LineSegment(V(-196, 103, 0), V(-196, 85, 0)), False)
sketch6.addGeometry(Part.LineSegment(V(-196, 85, 0), V(-178, 85, 0)), False)
sketch6.addGeometry(Part.LineSegment(V(-178, 85, 0), V(-178, 103, 0)), False)
sketch6.addGeometry(Part.LineSegment(V(-178, 103, 0), V(-196, 103, 0)), False)
sketch6.addConstraint(Sketcher.Constraint("Coincident", 0, 2, 1, 1))
sketch6.addConstraint(Sketcher.Constraint("Coincident", 1, 2, 2, 1))
sketch6.addConstraint(Sketcher.Constraint("Coincident", 2, 2, 3, 1))
sketch6.addConstraint(Sketcher.Constraint("Coincident", 3, 2, 0, 1))
sketch6.addConstraint(Sketcher.Constraint("Vertical", 0))
sketch6.addConstraint(Sketcher.Constraint("Horizontal", 1))
sketch6.addConstraint(Sketcher.Constraint("Vertical", 2))
sketch6.addConstraint(Sketcher.Constraint("Horizontal", 3))
sketch6.addConstraint(Sketcher.Constraint("Equal", 3, 0))
sketch6.addConstraint(Sketcher.Constraint("DistanceX", 1, 1, 1, 2, 18.0))
sketch6.addConstraint(Sketcher.Constraint("DistanceX", 0, 2, -1, 1, 195.837248))
sketch6.addConstraint(Sketcher.Constraint("DistanceY", -1, 1, 0, 2, 85.133657))
sketch6.setExpression("Constraints[9]", "Params.sketch6_width")
pocket1 = body.newObject("PartDesign::Pocket", "Pocket")
pocket1.Profile = sketch6
pocket1.setExpression("Length", "Params.pocket1_length")
doc.recompute()

fillet2 = body.newObject("PartDesign::Fillet", "Fillet001")
fillet2.Base = (pocket1, edges_at(pocket1, [
    (-177.837, 85.134, 1),
    (-177.837, 103.134, 1),
    (-195.837, 103.134, 1),
    (-195.837, 85.134, 1),
]))
fillet2.setExpression("Radius", "Params.fillet2_radius")

doc.recompute()
